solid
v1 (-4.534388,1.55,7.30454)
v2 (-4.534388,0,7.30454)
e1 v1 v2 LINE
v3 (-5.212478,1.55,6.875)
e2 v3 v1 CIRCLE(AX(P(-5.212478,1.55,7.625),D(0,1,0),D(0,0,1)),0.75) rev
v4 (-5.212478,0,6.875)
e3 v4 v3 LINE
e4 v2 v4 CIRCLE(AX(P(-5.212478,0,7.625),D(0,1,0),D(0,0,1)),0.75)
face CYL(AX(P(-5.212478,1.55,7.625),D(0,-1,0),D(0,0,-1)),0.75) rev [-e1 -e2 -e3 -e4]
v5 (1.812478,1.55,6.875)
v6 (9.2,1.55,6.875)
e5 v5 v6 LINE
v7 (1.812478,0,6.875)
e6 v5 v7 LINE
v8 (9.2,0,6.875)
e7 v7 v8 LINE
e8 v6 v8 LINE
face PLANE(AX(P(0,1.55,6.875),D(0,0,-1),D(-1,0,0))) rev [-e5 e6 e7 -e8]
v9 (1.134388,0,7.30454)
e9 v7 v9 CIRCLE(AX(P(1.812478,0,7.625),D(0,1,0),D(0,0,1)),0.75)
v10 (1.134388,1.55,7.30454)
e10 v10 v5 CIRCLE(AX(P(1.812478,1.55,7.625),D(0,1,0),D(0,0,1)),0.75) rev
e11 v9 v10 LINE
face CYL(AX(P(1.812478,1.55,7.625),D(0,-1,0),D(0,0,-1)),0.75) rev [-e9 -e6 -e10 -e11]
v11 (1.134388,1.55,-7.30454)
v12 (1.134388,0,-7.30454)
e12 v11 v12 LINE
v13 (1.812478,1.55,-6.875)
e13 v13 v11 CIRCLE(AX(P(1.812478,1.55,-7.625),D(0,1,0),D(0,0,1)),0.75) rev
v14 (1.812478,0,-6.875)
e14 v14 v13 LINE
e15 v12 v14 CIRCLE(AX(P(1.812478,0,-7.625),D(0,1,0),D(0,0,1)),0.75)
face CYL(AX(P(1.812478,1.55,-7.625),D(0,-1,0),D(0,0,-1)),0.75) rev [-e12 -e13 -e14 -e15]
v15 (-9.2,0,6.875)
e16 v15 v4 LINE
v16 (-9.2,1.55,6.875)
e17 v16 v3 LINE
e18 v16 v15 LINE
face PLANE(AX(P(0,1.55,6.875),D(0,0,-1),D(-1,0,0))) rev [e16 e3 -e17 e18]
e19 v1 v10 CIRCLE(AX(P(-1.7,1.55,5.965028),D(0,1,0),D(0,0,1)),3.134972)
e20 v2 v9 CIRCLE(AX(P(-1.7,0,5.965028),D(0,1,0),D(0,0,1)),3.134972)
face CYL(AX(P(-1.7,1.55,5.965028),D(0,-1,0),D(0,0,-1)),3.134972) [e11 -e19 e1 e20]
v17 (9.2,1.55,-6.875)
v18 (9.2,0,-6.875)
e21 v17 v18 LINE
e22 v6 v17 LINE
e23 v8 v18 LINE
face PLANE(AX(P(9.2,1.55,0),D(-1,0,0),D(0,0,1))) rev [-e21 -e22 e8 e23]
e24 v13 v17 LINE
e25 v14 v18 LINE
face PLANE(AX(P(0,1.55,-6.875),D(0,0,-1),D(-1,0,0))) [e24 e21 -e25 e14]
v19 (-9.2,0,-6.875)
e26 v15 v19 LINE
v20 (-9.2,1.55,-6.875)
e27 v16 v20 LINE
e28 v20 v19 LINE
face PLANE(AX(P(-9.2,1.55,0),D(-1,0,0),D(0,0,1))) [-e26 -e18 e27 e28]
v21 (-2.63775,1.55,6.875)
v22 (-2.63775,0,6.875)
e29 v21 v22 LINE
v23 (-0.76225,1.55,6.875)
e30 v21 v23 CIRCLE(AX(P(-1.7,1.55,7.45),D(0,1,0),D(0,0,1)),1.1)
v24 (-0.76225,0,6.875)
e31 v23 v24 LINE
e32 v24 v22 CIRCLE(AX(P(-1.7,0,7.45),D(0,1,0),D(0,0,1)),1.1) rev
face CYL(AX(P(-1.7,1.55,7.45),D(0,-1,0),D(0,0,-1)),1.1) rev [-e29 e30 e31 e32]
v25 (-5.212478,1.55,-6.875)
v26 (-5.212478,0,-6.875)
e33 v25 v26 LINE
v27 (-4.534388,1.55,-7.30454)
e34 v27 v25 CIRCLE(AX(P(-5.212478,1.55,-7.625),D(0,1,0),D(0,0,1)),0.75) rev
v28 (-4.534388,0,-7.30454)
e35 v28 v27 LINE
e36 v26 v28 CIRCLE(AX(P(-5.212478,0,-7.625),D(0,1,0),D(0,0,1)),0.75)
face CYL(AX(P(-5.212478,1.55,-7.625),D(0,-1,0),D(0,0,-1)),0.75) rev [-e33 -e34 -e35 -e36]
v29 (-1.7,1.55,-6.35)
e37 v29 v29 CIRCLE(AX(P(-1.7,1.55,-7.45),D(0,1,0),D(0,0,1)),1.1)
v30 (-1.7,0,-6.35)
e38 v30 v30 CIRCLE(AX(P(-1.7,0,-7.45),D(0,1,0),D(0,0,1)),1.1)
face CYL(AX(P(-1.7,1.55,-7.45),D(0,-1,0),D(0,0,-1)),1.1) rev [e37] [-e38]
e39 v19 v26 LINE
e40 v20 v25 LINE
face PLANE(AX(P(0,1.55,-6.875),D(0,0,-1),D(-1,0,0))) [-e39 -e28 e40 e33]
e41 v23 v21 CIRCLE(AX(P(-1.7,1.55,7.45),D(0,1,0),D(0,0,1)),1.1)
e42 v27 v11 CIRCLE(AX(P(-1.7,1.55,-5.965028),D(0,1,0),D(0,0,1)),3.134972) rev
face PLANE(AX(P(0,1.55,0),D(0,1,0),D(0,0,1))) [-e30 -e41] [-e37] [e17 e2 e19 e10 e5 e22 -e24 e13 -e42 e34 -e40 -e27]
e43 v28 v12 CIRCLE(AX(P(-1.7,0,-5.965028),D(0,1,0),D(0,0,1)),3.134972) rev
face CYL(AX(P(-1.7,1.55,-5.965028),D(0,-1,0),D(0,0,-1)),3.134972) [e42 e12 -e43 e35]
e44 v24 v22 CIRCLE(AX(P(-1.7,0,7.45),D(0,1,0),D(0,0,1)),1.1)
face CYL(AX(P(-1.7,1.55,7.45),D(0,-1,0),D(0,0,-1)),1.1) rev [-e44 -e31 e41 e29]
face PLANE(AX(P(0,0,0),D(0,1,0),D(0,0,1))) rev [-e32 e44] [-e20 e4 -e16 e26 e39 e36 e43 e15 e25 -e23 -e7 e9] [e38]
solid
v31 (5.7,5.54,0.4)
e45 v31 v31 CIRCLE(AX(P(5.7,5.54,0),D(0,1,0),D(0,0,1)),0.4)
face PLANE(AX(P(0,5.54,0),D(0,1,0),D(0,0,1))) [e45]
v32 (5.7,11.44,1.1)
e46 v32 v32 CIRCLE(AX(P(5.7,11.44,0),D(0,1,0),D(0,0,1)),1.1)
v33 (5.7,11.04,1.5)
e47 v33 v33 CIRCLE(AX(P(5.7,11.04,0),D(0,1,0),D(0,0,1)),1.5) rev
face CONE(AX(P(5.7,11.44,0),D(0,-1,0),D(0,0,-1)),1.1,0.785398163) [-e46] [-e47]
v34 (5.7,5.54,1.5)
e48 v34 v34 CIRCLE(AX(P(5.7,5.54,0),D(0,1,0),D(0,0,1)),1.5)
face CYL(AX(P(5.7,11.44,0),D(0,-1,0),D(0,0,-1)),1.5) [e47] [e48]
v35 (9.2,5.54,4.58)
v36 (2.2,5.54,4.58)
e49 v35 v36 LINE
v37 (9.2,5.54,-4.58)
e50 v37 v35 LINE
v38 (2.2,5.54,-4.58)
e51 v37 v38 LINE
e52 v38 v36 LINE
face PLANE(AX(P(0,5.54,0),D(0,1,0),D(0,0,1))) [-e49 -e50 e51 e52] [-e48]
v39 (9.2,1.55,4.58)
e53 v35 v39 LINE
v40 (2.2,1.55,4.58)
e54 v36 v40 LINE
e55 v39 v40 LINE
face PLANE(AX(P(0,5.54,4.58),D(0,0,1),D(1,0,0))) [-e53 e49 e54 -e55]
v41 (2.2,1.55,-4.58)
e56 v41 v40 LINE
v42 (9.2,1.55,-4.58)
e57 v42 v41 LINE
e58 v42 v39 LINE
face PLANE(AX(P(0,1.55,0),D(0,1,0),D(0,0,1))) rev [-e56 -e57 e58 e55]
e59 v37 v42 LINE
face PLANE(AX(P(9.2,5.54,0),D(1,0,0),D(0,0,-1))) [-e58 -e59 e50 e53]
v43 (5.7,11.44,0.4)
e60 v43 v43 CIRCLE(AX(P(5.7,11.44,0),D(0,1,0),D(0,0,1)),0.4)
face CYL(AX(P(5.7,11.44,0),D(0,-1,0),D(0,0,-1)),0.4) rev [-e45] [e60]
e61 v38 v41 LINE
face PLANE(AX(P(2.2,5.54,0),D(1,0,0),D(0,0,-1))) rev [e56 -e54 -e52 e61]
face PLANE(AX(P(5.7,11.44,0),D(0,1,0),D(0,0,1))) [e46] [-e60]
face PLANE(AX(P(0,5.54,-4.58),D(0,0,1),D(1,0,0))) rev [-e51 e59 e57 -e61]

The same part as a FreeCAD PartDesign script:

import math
import FreeCAD as App
import Part
import Sketcher

V = App.Vector


def edges_at(feature, points):
    """Names of the edges that pass closest to the given points."""
    edges = feature.Shape.Edges
    near = lambda p: min(range(len(edges)), key=lambda i: edges[i].distToShape(Part.Vertex(*p))[0])
    return sorted({f"Edge{near(p) + 1}" for p in points})


def add_polygon(sketch, points):
    """Adds a closed chain of lines whose ends are joined by coincident constraints."""
    first, n = sketch.GeometryCount, len(points)
    for a, b in zip(points, points[1:] + points[:1]):
        sketch.addGeometry(Part.LineSegment(App.Vector(*a, 0), App.Vector(*b, 0)), False)
    for i in range(n):
        sketch.addConstraint(Sketcher.Constraint("Coincident", first + i, 2, first + (i + 1) % n, 1))

doc = App.newDocument("Part")
body = doc.addObject("PartDesign::Body", "Body")

# Sketch on XZ plane
sketch1 = body.newObject("Sketcher::SketchObject", "Sketch")
sketch1.AttachmentSupport = (doc.getObject("XZ_Plane"), [""])
sketch1.MapMode = "FlatFace"
sketch1.addGeometry(Part.LineSegment(V(-9.2, -6.875, 0), V(-9.2, 6.875, 0)), False)
sketch1.addGeometry(Part.LineSegment(V(-9.2, 6.875, 0), V(-4.7, 6.875, 0)), False)
sketch1.addGeometry(Part.ArcOfCircle(Part.Circle(V(-1.7, 5.965028, 0), V(0, 0, 1), 3.134972), math.radians(16.873808), math.radians(163.126192)), False)
sketch1.addGeometry(Part.LineSegment(V(1.3, 6.875, 0), V(9.2, 6.875, 0)), False)
sketch1.addGeometry(Part.LineSegment(V(9.2, 6.875, 0), V(9.2, -6.875, 0)), False)
sketch1.addGeometry(Part.LineSegment(V(9.2, -6.875, 0), V(1.3, -6.875, 0)), False)
sketch1.addGeometry(Part.ArcOfCircle(Part.Circle(V(-1.7, -5.965028, 0), V(0, 0, 1), 3.134972), math.radians(-163.126192), math.radians(-16.873808)), False)
sketch1.addGeometry(Part.LineSegment(V(-4.7, -6.875, 0), V(-9.2, -6.875, 0)), False)
sketch1.addGeometry(Part.Circle(V(-1.7, 7.45, 0), V(0, 0, 1), 1.1), False)
sketch1.addGeometry(Part.Circle(V(-1.7, -7.45, 0), V(0, 0, 1), 1.1), False)
sketch1.addConstraint(Sketcher.Constraint("Coincident", 0, 2, 1, 1))
sketch1.addConstraint(Sketcher.Constraint("Coincident", 1, 2, 2, 2))
sketch1.addConstraint(Sketcher.Constraint("Coincident", 2, 1, 3, 1))
sketch1.addConstraint(Sketcher.Constraint("Coincident", 3, 2, 4, 1))
sketch1.addConstraint(Sketcher.Constraint("Coincident", 4, 2, 5, 1))
sketch1.addConstraint(Sketcher.Constraint("Coincident", 5, 2, 6, 2))
sketch1.addConstraint(Sketcher.Constraint("Coincident", 6, 1, 7, 1))
sketch1.addConstraint(Sketcher.Constraint("Coincident", 7, 2, 0, 1))
sketch1.addConstraint(Sketcher.Constraint("Vertical", 0))
sketch1.addConstraint(Sketcher.Constraint("Horizontal", 1))
sketch1.addConstraint(Sketcher.Constraint("Horizontal", 3))
sketch1.addConstraint(Sketcher.Constraint("Vertical", 4))
sketch1.addConstraint(Sketcher.Constraint("Horizontal", 5))
sketch1.addConstraint(Sketcher.Constraint("Horizontal", 7))
sketch1.addConstraint(Sketcher.Constraint("Equal", 2, 6))
sketch1.addConstraint(Sketcher.Constraint("Equal", 8, 9))
sketch1.addConstraint(Sketcher.Constraint("Symmetric", 0, 2, 4, 2, -1, 1))
sketch1.addConstraint(Sketcher.Constraint("Symmetric", 2, 3, 6, 3, -1))
sketch1.addConstraint(Sketcher.Constraint("Symmetric", 8, 3, 9, 3, -1))
sketch1.addConstraint(Sketcher.Constraint("Horizontal", 1, 2, 2, 1))
sketch1.addConstraint(Sketcher.Constraint("Horizontal", 5, 2, 6, 1))
sketch1.addConstraint(Sketcher.Constraint("Vertical", 6, 3, 8, 3))
sketch1.addConstraint(Sketcher.Constraint("Diameter", 8, 2.2))
sketch1.addConstraint(Sketcher.Constraint("DistanceX", 1, 1, 1, 2, 4.5))
sketch1.addConstraint(Sketcher.Constraint("DistanceX", 3, 1, 3, 2, 7.9))
sketch1.addConstraint(Sketcher.Constraint("DistanceX", 1, 2, 8, 3, 3.0))
sketch1.addConstraint(Sketcher.Constraint("DistanceY", 0, 1, 0, 2, 13.75))
sketch1.addConstraint(Sketcher.Constraint("DistanceY", 9, 3, 8, 3, 14.9))
sketch1.addConstraint(Sketcher.Constraint("Radius", 2, 3.134972))
pad1 = body.newObject("PartDesign::Pad", "Pad")
pad1.Profile = sketch1
pad1.Length = 1.55
pad1.Reversed = True
doc.recompute()

fillet = body.newObject("PartDesign::Fillet", "Fillet")
fillet.Base = (pad1, edges_at(pad1, [
    (-4.7, 0.775, 6.875),
    (-4.7, 0.775, -6.875),
    (1.3, 0.775, -6.875),
    (1.3, 0.775, 6.875),
]))
fillet.Radius = 0.75
body2 = doc.addObject("PartDesign::Body", "Body001")

# Sketch on XZ plane
sketch2 = body2.newObject("Sketcher::SketchObject", "Sketch001")
sketch2.AttachmentSupport = (doc.getObject("XZ_Plane001"), [""])
sketch2.MapMode = "FlatFace"
sketch2.AttachmentOffset = App.Placement(V(0, 0, -1.55), App.Rotation())
add_polygon(sketch2, [(2.2, -4.58), (2.2, 4.58), (9.2, 4.58), (9.2, -4.58)])  # lines 0-3
sketch2.addConstraint(Sketcher.Constraint("Vertical", 0))
sketch2.addConstraint(Sketcher.Constraint("Horizontal", 1))
sketch2.addConstraint(Sketcher.Constraint("Vertical", 2))
sketch2.addConstraint(Sketcher.Constraint("Horizontal", 3))
sketch2.addConstraint(Sketcher.Constraint("DistanceX", 1, 1, 1, 2, 7.0))
sketch2.addConstraint(Sketcher.Constraint("DistanceY", 0, 1, 0, 2, 9.16))
sketch2.addConstraint(Sketcher.Constraint("DistanceX", -1, 1, 0, 2, 2.2))
sketch2.addConstraint(Sketcher.Constraint("DistanceY", -1, 1, 0, 2, 4.58))
pad2 = body2.newObject("PartDesign::Pad", "Pad001")
pad2.Profile = sketch2
pad2.Length = 3.99
pad2.Reversed = True

# Sketch on XZ plane
sketch3 = body2.newObject("Sketcher::SketchObject", "Sketch002")
sketch3.AttachmentSupport = (doc.getObject("XZ_Plane001"), [""])
sketch3.MapMode = "FlatFace"
sketch3.AttachmentOffset = App.Placement(V(0, 0, -5.54), App.Rotation())
sketch3.addGeometry(Part.Circle(V(5.7, 0, 0), V(0, 0, 1), 1.5), False)
sketch3.addGeometry(Part.Circle(V(5.7, 0, 0), V(0, 0, 1), 0.4), False)
sketch3.addConstraint(Sketcher.Constraint("Coincident", 1, 3, 0, 3))
sketch3.addConstraint(Sketcher.Constraint("PointOnObject", 0, 3, -1))
sketch3.addConstraint(Sketcher.Constraint("Diameter", 0, 3.0))
sketch3.addConstraint(Sketcher.Constraint("Diameter", 1, 0.8))
sketch3.addConstraint(Sketcher.Constraint("DistanceX", -1, 1, 0, 3, 5.7))
pad3 = body2.newObject("PartDesign::Pad", "Pad002")
pad3.Profile = sketch3
pad3.Length = 5.9
pad3.Reversed = True
doc.recompute()

chamfer = body2.newObject("PartDesign::Chamfer", "Chamfer")
chamfer.Base = (pad3, edges_at(pad3, [(4.2, 11.44, 0)]))
chamfer.Size = 0.4

doc.recompute()
